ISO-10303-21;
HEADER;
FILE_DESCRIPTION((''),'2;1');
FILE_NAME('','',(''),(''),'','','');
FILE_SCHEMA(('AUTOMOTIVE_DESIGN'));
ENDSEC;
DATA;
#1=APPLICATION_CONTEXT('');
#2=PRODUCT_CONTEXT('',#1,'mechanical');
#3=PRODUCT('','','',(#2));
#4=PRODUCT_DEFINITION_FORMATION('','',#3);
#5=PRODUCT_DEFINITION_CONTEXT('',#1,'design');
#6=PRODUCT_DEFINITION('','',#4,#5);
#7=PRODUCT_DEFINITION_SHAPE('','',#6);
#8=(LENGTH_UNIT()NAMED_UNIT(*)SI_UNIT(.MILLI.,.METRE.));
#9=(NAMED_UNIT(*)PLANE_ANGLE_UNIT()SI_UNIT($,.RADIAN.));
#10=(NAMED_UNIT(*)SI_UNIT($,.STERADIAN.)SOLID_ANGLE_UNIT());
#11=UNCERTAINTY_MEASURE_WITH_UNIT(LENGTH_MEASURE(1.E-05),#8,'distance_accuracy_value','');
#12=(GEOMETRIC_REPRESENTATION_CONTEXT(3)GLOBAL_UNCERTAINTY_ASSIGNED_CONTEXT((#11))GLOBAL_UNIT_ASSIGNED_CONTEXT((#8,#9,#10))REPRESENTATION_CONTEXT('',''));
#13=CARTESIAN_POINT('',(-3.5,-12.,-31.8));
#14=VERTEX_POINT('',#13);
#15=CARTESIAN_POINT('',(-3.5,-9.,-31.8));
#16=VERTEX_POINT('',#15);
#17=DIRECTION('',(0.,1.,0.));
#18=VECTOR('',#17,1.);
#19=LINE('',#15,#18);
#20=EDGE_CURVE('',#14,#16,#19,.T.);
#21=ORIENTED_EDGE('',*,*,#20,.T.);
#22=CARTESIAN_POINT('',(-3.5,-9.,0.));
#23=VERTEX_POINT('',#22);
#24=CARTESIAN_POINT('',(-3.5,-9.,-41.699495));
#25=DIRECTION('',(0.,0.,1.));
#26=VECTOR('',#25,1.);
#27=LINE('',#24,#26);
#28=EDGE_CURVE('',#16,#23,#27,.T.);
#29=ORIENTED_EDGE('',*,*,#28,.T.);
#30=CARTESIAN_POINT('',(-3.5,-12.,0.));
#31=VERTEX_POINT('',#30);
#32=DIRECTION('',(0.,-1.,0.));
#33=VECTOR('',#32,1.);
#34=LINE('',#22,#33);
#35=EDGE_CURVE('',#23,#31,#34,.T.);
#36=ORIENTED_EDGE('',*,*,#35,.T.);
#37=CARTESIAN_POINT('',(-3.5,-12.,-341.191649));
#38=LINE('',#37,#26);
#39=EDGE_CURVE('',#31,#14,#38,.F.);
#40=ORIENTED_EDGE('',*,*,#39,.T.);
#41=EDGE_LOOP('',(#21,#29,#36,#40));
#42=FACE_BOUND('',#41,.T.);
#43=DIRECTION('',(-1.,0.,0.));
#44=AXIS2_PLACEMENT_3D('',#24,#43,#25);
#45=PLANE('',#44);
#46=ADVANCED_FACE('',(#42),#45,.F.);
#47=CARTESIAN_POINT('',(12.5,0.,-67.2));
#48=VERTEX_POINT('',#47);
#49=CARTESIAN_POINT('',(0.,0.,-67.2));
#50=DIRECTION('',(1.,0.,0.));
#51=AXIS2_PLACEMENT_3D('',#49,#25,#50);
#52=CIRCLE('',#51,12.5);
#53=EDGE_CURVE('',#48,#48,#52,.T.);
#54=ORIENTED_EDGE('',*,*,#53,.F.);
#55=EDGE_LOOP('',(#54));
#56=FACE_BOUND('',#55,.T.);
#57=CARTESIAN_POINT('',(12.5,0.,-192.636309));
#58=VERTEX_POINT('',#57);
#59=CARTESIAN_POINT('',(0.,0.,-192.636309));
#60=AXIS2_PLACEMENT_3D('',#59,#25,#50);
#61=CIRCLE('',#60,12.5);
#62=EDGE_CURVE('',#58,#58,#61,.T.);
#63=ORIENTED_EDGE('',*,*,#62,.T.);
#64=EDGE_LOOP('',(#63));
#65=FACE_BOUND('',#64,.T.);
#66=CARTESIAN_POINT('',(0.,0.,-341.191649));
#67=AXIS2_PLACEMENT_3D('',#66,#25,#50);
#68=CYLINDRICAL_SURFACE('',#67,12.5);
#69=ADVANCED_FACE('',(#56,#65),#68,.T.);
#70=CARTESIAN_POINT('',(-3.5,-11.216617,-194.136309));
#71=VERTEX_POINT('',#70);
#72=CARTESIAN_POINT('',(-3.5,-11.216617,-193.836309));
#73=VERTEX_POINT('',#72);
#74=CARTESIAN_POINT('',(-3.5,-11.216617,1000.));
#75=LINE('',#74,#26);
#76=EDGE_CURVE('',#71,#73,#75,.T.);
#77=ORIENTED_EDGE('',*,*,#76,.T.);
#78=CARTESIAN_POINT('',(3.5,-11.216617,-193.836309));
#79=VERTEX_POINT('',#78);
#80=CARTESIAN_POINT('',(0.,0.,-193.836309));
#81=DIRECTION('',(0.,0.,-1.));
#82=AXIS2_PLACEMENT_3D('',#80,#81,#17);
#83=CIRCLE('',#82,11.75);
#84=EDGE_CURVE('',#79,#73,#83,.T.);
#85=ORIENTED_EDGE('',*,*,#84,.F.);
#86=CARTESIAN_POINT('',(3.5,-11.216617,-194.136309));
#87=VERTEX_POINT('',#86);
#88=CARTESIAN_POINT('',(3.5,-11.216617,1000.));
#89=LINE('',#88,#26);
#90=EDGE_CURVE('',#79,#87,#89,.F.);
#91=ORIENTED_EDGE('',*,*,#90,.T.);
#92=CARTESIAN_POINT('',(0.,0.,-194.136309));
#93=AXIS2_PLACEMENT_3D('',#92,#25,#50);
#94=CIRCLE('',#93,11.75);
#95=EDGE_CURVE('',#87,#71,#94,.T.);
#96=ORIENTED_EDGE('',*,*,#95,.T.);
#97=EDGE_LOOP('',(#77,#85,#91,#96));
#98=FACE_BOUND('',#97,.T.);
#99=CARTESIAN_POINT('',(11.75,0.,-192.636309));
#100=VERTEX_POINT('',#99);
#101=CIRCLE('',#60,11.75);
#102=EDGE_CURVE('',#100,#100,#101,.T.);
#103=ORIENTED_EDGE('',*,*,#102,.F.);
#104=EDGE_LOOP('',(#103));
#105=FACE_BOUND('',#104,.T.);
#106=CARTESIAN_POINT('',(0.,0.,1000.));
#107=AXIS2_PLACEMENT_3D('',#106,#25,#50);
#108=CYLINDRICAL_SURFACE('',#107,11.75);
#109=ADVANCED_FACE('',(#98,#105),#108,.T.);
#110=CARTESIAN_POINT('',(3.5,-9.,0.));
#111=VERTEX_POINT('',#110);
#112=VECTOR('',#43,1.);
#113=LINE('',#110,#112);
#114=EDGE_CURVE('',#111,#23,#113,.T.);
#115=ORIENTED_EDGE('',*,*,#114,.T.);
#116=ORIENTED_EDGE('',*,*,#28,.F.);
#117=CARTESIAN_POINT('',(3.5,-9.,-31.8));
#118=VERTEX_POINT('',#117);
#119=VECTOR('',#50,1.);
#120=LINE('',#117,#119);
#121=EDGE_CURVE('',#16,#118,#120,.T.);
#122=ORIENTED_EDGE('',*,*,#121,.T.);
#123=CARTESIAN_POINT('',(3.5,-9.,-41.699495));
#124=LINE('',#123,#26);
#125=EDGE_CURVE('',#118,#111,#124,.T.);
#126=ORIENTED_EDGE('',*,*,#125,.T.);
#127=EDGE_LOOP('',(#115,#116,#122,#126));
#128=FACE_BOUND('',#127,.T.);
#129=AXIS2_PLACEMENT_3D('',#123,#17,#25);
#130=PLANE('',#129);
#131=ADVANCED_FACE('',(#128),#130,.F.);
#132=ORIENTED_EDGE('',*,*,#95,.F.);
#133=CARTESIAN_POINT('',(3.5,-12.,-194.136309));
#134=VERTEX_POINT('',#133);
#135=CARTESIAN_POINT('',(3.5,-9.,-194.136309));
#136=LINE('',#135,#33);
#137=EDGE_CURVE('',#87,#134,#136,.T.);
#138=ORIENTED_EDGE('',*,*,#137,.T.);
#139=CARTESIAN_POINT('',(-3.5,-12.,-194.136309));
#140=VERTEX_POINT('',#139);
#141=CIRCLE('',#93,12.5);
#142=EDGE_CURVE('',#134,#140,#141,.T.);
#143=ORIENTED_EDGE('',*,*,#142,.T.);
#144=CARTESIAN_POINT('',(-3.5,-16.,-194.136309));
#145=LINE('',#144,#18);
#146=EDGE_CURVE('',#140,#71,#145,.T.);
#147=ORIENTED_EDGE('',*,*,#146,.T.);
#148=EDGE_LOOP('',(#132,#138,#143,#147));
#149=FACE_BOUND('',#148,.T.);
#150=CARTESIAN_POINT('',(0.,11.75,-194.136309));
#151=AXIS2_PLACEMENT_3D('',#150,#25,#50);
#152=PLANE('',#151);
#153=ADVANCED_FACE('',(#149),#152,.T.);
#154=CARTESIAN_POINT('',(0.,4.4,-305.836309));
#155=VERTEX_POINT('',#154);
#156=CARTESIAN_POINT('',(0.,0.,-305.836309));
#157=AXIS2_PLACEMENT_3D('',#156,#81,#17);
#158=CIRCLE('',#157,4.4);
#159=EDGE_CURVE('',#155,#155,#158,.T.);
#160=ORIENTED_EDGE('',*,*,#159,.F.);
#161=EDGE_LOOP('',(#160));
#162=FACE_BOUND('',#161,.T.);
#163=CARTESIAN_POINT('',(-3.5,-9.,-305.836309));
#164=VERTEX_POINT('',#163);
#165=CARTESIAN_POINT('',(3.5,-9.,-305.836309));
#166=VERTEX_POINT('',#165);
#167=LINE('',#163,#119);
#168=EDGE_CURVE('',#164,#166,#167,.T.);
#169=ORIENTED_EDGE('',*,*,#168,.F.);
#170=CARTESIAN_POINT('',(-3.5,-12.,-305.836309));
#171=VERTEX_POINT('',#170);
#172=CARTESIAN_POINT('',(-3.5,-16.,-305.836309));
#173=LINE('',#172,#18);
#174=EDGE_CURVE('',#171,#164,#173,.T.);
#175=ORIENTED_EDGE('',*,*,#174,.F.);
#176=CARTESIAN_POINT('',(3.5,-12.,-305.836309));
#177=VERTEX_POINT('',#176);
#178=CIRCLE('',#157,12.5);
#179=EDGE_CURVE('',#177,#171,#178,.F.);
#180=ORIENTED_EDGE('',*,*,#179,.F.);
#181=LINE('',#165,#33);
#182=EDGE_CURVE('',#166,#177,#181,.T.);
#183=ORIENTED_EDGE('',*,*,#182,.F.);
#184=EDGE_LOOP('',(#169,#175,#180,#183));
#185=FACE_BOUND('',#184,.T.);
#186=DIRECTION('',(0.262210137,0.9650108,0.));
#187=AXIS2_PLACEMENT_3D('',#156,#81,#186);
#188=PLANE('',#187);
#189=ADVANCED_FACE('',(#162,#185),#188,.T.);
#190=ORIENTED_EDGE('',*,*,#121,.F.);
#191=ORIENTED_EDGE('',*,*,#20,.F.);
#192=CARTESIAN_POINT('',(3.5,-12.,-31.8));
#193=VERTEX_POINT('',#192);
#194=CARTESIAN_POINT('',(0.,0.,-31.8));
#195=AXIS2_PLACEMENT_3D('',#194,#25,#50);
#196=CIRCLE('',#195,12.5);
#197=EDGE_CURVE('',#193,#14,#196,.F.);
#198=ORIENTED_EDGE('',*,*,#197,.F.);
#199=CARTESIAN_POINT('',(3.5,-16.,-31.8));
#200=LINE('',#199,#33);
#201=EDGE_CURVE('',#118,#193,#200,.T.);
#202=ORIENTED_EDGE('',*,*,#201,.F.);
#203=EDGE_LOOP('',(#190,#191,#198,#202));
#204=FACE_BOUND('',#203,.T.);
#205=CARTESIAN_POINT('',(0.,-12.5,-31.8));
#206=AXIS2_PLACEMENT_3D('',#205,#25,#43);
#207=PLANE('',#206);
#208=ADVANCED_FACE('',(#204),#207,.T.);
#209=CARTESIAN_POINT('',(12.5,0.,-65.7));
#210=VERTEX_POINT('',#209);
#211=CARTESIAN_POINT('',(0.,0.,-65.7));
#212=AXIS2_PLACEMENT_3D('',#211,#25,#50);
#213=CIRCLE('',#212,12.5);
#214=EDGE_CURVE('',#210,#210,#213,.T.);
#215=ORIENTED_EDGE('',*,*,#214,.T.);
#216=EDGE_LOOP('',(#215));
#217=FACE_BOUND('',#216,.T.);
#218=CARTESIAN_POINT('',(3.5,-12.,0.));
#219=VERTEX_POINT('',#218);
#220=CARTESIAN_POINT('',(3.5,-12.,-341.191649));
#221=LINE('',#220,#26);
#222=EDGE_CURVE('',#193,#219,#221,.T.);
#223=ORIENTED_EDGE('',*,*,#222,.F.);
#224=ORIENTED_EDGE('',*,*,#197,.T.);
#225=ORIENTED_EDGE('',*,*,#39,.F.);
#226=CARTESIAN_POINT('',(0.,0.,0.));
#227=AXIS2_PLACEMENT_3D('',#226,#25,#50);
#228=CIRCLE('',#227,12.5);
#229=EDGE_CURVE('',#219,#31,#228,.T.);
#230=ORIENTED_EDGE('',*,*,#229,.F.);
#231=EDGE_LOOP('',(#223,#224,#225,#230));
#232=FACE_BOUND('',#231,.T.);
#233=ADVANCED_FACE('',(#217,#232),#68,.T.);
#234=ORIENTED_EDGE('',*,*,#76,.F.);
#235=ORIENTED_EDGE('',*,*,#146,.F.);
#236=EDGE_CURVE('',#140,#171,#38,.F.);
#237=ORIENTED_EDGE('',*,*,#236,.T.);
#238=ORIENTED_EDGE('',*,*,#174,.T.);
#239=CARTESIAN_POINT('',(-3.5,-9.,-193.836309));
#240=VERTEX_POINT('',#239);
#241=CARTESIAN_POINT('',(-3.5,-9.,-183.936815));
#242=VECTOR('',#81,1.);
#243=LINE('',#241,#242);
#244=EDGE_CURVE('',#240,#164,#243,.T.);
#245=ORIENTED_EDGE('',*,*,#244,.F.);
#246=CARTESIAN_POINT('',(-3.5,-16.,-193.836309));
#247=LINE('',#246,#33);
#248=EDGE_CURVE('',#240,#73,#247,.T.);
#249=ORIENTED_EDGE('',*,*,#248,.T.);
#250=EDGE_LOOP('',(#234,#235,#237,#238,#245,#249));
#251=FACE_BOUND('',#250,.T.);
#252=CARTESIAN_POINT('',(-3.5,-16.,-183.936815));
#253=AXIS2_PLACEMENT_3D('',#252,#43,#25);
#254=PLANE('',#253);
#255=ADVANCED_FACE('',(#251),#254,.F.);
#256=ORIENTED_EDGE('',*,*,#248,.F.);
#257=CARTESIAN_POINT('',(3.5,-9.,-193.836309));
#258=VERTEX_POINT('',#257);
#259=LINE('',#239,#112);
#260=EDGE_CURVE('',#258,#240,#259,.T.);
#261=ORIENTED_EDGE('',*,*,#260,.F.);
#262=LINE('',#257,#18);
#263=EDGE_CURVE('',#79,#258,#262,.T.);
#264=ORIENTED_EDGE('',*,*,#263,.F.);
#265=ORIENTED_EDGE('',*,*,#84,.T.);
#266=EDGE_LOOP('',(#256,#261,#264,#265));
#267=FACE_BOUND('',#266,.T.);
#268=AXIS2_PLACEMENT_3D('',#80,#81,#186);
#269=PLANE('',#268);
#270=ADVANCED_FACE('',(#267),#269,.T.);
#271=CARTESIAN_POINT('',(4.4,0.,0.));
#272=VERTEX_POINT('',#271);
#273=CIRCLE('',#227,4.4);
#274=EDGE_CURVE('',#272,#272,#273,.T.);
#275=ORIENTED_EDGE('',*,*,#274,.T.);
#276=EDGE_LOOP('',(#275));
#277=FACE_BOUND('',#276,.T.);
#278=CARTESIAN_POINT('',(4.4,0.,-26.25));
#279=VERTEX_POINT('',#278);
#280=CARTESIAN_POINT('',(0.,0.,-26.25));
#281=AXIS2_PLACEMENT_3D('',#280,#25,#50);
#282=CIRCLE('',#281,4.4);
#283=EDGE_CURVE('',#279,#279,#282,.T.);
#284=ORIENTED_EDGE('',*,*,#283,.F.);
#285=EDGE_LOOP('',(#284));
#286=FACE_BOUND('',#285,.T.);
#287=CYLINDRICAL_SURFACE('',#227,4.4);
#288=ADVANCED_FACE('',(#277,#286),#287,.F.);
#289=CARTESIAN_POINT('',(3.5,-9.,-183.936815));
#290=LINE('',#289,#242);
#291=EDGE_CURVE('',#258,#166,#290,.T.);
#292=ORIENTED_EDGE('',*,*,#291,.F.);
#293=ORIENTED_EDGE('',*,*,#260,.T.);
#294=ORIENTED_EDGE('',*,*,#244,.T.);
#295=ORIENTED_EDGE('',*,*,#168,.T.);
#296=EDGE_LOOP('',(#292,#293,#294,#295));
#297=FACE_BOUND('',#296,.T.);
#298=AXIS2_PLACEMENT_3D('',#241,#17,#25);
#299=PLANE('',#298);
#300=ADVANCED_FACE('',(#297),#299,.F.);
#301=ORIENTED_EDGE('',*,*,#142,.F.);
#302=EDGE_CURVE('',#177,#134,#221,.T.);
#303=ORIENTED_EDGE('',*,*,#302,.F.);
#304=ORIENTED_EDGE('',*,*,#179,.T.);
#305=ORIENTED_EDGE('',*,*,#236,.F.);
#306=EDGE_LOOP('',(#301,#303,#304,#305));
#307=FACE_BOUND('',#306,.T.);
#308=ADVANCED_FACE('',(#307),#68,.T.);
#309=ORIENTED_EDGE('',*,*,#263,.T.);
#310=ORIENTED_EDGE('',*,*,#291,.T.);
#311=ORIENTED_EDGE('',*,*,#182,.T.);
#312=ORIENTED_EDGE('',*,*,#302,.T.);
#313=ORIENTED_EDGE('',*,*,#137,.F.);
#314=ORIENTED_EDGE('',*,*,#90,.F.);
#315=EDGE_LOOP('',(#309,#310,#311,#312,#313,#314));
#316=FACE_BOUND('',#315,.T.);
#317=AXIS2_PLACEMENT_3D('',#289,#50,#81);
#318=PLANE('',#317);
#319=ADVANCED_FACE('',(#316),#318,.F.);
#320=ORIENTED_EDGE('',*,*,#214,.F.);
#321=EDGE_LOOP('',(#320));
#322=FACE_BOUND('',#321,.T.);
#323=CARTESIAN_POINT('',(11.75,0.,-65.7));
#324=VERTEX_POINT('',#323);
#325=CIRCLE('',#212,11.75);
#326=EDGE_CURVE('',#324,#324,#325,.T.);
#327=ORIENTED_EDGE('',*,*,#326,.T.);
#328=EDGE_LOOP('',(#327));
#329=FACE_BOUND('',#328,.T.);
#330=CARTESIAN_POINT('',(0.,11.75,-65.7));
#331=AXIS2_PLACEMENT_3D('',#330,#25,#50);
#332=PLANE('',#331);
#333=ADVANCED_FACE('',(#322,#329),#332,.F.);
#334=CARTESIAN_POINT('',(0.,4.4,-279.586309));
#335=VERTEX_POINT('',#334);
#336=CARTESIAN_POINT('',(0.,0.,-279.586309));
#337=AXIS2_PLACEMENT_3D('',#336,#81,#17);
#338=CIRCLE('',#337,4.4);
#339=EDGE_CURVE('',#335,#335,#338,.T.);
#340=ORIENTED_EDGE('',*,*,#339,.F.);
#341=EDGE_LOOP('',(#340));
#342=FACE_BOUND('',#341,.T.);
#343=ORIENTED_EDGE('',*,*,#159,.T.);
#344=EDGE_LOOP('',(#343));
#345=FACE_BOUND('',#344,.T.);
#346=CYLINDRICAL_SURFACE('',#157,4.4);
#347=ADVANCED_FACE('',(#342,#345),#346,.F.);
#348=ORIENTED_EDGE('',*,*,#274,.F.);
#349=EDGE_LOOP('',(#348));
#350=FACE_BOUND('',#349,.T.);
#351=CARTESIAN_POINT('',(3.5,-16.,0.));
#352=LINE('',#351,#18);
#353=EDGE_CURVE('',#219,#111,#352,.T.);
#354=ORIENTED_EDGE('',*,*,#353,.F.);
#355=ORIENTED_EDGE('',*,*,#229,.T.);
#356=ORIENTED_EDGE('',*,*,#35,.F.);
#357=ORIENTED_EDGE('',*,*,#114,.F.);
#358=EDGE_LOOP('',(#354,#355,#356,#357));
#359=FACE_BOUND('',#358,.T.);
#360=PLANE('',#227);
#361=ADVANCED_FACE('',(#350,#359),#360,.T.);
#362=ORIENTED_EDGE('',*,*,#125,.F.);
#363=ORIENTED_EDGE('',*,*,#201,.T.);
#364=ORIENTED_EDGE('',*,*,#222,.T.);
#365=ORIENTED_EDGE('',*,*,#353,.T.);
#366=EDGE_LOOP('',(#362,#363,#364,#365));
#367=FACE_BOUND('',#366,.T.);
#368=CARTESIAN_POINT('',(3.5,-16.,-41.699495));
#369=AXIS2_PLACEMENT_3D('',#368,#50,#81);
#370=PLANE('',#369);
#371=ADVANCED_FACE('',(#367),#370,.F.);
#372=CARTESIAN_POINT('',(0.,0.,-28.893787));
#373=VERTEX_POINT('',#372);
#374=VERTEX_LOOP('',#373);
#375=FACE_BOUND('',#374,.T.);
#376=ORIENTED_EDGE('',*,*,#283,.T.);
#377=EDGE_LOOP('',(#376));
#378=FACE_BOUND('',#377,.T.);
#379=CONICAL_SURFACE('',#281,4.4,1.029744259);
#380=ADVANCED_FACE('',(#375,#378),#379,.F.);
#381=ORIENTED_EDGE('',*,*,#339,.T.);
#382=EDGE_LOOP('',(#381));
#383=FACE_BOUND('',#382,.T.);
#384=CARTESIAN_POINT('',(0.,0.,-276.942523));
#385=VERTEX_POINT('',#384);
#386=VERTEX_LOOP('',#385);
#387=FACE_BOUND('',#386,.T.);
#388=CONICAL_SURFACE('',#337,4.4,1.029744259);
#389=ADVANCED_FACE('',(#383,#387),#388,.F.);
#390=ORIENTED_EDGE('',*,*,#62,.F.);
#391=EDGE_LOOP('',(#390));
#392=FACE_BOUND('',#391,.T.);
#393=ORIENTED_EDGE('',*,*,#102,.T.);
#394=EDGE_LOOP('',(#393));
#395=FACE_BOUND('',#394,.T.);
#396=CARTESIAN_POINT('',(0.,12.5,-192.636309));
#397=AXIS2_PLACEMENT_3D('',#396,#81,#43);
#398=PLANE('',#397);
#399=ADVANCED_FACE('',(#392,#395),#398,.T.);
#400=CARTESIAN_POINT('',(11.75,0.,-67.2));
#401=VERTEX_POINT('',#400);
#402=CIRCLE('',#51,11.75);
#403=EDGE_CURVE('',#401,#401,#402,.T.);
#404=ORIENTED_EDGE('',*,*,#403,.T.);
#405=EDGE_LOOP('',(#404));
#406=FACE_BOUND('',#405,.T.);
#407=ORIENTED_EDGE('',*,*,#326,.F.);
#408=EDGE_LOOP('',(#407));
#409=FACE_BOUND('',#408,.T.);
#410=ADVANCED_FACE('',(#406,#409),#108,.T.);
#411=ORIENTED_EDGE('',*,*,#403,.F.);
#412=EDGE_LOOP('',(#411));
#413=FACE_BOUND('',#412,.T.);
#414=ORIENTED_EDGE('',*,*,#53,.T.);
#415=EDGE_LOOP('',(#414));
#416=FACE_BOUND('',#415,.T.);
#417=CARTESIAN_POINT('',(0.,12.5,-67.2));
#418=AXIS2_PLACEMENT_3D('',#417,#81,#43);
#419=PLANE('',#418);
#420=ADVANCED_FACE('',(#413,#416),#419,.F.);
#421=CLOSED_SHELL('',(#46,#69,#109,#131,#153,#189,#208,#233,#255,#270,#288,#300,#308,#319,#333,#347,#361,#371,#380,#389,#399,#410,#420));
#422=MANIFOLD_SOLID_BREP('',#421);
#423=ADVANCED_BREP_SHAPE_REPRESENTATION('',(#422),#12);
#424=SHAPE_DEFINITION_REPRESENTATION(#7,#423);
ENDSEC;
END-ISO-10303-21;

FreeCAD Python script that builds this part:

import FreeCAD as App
import Part
import Sketcher


def add_polygon(sketch, points):
    """Adds a closed chain of lines whose ends are joined by coincident constraints."""
    first, n = sketch.GeometryCount, len(points)
    for a, b in zip(points, points[1:] + points[:1]):
        sketch.addGeometry(Part.LineSegment(App.Vector(*a, 0), App.Vector(*b, 0)), False)
    for i in range(n):
        sketch.addConstraint(Sketcher.Constraint("Coincident", first + i, 2, first + (i + 1) % n, 1))

doc = App.newDocument("Part")
body = doc.addObject("PartDesign::Body", "Body")

# Sketch on XY plane
sketch1 = body.newObject("Sketcher::SketchObject", "Sketch")
sketch1.AttachmentSupport = (doc.getObject("XY_Plane"), [""])
sketch1.MapMode = "FlatFace"
sketch1.addGeometry(Part.Circle(App.Vector(0, 0, 0), App.Vector(0, 0, 1), 12), False)
sketch1.addConstraint([
    Sketcher.Constraint("Coincident", 0, 3, -1, 1),
    Sketcher.Constraint("Diameter", 0, 25.0),
])
pad1 = body.newObject("PartDesign::Pad", "Pad")
pad1.Profile = sketch1
pad1.Length = 305.836309
pad1.Reversed = True

# Sketch on XY plane
sketch2 = body.newObject("Sketcher::SketchObject", "Sketch001")
sketch2.AttachmentSupport = (doc.getObject("XY_Plane"), [""])
sketch2.MapMode = "FlatFace"
sketch2.AttachmentOffset = App.Placement(App.Vector(0, 0, -31.8), App.Rotation())
add_polygon(sketch2, [(-4, -9), (-4, -16), (4, -16), (4, -9)])  # lines 0-3
sketch2.addConstraint([
    Sketcher.Constraint("Vertical", 0),
    Sketcher.Constraint("Horizontal", 1),
    Sketcher.Constraint("Vertical", 2),
    Sketcher.Constraint("Horizontal", 3),
    Sketcher.Constraint("Equal", 3, 0),
    Sketcher.Constraint("DistanceX", 1, 1, 1, 2, 7.0),
    Sketcher.Constraint("DistanceY", 0, 2, -1, 1, 16.0),
    Sketcher.Constraint("DistanceX", 0, 2, -1, 1, 3.5),
])
pocket1 = body.newObject("PartDesign::Pocket", "Pocket")
pocket1.Profile = sketch2
pocket1.Length = 31.8
pocket1.Reversed = True

# Sketch on XY plane
sketch3 = body.newObject("Sketcher::SketchObject", "Sketch002")
sketch3.AttachmentSupport = (doc.getObject("XY_Plane"), [""])
sketch3.MapMode = "FlatFace"
sketch3.AttachmentOffset = App.Placement(App.Vector(0, 0, -193.836309), App.Rotation())
add_polygon(sketch3, [(4, -9), (4, -16), (-4, -16), (-4, -9)])  # lines 0-3
sketch3.addConstraint([
    Sketcher.Constraint("Vertical", 0),
    Sketcher.Constraint("Horizontal", 1),
    Sketcher.Constraint("Vertical", 2),
    Sketcher.Constraint("Horizontal", 3),
    Sketcher.Constraint("Equal", 3, 0),
    Sketcher.Constraint("DistanceX", 1, 2, 1, 1, 7.0),
    Sketcher.Constraint("DistanceY", 0, 2, -1, 1, 16.0),
    Sketcher.Constraint("DistanceX", -1, 1, 0, 2, 3.5),
])
pocket2 = body.newObject("PartDesign::Pocket", "Pocket001")
pocket2.Profile = sketch3
pocket2.Length = 112

# Sketch on XY plane
sketch4 = body.newObject("Sketcher::SketchObject", "Sketch003")
sketch4.AttachmentSupport = (doc.getObject("XY_Plane"), [""])
sketch4.MapMode = "FlatFace"
sketch4.addGeometry(Part.Circle(App.Vector(0, 0, 0), App.Vector(0, 0, 1), 4.4), False)
sketch4.addConstraint([
    Sketcher.Constraint("Coincident", 0, 3, -1, 1),
    Sketcher.Constraint("Diameter", 0, 8.8),
])
doc.recompute()
hole = body.newObject("PartDesign::Hole", "Hole")
hole.Profile = sketch4
hole.ThreadType = "None"
hole.Diameter = 8.8
hole.DepthType = "Dimension"
hole.Depth = 26.25
hole.DrillPoint = "Angled"
hole.DrillPointAngle = 118

# Sketch on XY plane
sketch5 = body.newObject("Sketcher::SketchObject", "Sketch004")
sketch5.AttachmentSupport = (doc.getObject("XY_Plane"), [""])
sketch5.MapMode = "FlatFace"
sketch5.AttachmentOffset = App.Placement(App.Vector(0, 0, -305.836309), App.Rotation())
sketch5.addGeometry(Part.Circle(App.Vector(0, 0, 0), App.Vector(0, 0, 1), 4.4), False)
sketch5.addConstraint([
    Sketcher.Constraint("Coincident", 0, 3, -1, 1),
    Sketcher.Constraint("Diameter", 0, 8.8),
])
doc.recompute()
hole2 = body.newObject("PartDesign::Hole", "Hole001")
hole2.Profile = sketch5
hole2.ThreadType = "None"
hole2.Diameter = 8.8
hole2.DepthType = "Dimension"
hole2.Depth = 26.25
hole2.DrillPoint = "Angled"
hole2.DrillPointAngle = 118
hole2.Reversed = True

# Sketch on YZ plane
sketch6 = body.newObject("Sketcher::SketchObject", "Sketch005")
sketch6.AttachmentSupport = (doc.getObject("YZ_Plane"), [""])
sketch6.MapMode = "FlatFace"
add_polygon(sketch6, [(12.5, -65.7), (11.8, -65.7), (11.8, -67.2), (12.5, -67.2)])  # lines 0-3
add_polygon(sketch6, [(12.5, -192.6), (11.8, -192.6), (11.8, -194.1), (12.5, -194.1)])  # lines 4-7
sketch6.addConstraint([
    Sketcher.Constraint("Horizontal", 0),
    Sketcher.Constraint("Vertical", 1),
    Sketcher.Constraint("Horizontal", 2),
    Sketcher.Constraint("Vertical", 3),
    Sketcher.Constraint("Horizontal", 4),
    Sketcher.Constraint("Vertical", 5),
    Sketcher.Constraint("Horizontal", 6),
    Sketcher.Constraint("Vertical", 7),
    Sketcher.Constraint("Vertical", 1, 2, 4, 2),
    Sketcher.Constraint("Vertical", 3, 2, 6, 2),
    Sketcher.Constraint("Equal", 3, 5),
    Sketcher.Constraint("DistanceY", 1, 2, 1, 1, 1.5),
    Sketcher.Constraint("DistanceX", 0, 2, 0, 1, 0.75),
    Sketcher.Constraint("DistanceY", 0, 2, -1, 1, 65.7),
    Sketcher.Constraint("DistanceX", -1, 1, 2, 2, 12.5),
    Sketcher.Constraint("DistanceY", 4, 2, -1, 1, 192.636309),
])
groove = body.newObject("PartDesign::Groove", "Groove")
groove.Profile = sketch6
groove.ReferenceAxis = (sketch6, ["V_Axis"])
groove.Angle = 360

doc.recompute()
